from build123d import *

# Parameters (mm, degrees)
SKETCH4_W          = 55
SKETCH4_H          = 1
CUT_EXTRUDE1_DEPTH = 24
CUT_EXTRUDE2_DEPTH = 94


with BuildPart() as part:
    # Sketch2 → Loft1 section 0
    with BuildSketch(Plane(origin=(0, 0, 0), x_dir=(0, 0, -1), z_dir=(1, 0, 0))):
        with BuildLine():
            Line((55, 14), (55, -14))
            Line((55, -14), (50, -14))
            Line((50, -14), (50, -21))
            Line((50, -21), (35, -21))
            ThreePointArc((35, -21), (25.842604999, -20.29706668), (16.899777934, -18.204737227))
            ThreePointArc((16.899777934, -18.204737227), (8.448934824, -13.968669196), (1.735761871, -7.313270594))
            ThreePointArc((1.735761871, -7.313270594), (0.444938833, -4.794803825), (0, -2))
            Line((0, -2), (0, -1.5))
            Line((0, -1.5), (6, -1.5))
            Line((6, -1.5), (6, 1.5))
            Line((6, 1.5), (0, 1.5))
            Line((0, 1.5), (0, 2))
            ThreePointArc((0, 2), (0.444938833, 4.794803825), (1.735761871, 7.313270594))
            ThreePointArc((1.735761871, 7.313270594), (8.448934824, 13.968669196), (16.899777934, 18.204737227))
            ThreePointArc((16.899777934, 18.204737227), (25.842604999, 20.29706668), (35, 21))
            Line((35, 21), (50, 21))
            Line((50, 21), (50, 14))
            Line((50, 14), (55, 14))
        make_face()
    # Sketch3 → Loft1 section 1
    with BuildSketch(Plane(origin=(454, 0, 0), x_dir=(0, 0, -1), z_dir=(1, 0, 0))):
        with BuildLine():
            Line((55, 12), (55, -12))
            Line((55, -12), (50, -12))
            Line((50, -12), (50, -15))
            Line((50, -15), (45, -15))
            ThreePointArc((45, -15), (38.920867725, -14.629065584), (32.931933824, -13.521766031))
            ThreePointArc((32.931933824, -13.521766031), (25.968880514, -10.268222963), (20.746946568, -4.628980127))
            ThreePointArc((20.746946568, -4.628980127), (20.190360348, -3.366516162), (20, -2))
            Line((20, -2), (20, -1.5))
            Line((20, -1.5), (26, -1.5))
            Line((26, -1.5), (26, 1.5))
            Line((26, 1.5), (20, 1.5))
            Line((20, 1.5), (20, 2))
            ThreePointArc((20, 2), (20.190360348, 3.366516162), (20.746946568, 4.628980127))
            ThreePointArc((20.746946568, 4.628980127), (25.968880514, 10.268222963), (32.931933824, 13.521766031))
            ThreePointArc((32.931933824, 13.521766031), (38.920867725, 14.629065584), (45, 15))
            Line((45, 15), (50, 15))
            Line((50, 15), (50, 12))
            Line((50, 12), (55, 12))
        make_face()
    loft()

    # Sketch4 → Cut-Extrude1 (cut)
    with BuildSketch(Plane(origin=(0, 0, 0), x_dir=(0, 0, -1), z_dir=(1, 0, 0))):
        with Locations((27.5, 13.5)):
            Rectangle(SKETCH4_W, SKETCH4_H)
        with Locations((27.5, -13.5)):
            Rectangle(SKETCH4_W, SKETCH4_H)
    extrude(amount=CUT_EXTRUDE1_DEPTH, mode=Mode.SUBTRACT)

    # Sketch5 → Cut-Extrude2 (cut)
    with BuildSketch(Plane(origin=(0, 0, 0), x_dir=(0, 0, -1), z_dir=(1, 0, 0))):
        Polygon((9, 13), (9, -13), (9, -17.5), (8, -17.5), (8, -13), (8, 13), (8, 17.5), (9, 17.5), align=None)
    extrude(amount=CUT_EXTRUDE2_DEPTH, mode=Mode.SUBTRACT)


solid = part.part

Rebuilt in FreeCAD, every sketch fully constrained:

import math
import FreeCAD as App
import Part
import Sketcher

V = App.Vector

doc = App.newDocument("Part")
params = doc.addObject("Spreadsheet::Sheet", "Params")
for row, (alias, value) in enumerate([
    ("sketch1_radius", "60 mm"),
    ("sketch1_radius2", "30 mm"),
    ("sketch1_radius3", "9 mm"),
    ("sketch1_width", "28 mm"),
    ("sketch1_width2", "7 mm"),
    ("sketch2_radius", "50 mm"),
    ("sketch2_radius2", "20 mm"),
    ("sketch2_radius3", "5 mm"),
    ("sketch2_width", "24 mm"),
    ("sketch2_width2", "3 mm"),
    ("sketch3_width", "1 mm"),
    ("sketch3_height", "55 mm"),
    ("pocket1_length", "24 mm"),
    ("sketch4_width", "35 mm"),
    ("sketch4_height", "1 mm"),
    ("pocket2_length", "94 mm"),
], start=1):
    params.set(f"A{row}", alias)
    params.set(f"B{row}", "=" + value)
    params.setAlias(f"B{row}", alias)

body = doc.addObject("PartDesign::Body", "Body")

# Sketch on YZ plane
sketch1 = body.newObject("Sketcher::SketchObject", "Sketch")
sketch1.AttachmentSupport = (doc.getObject("YZ_Plane"), [""])
sketch1.MapMode = "FlatFace"
sketch1.addGeometry(Part.LineSegment(V(-14, -55, 0), V(14, -55, 0)), False)
sketch1.addGeometry(Part.LineSegment(V(14, -55, 0), V(14, -50, 0)), False)
sketch1.addGeometry(Part.LineSegment(V(14, -50, 0), V(21, -50, 0)), False)
sketch1.addGeometry(Part.LineSegment(V(21, -50, 0), V(21, -35, 0)), False)
sketch1.addGeometry(Part.ArcOfCircle(Part.Circle(V(-39, -35, 0), V(0, 0, 1), 60), math.radians(0), math.radians(17.557957)), False)
sketch1.addGeometry(Part.ArcOfCircle(Part.Circle(V(-10.397631, -25.949889, 0), V(0, 0, 1), 30), math.radians(17.557957), math.radians(53.8172)), False)
sketch1.addGeometry(Part.ArcOfCircle(Part.Circle(V(2, -9, 0), V(0, 0, 1), 9), math.radians(53.8172), math.radians(90)), False)
sketch1.addGeometry(Part.LineSegment(V(2, 0, 0), V(1.5, 0, 0)), False)
sketch1.addGeometry(Part.LineSegment(V(1.5, 0, 0), V(1.5, -6, 0)), False)
sketch1.addGeometry(Part.LineSegment(V(1.5, -6, 0), V(-1.5, -6, 0)), False)
sketch1.addGeometry(Part.LineSegment(V(-1.5, -6, 0), V(-1.5, 0, 0)), False)
sketch1.addGeometry(Part.LineSegment(V(-1.5, 0, 0), V(-2, 0, 0)), False)
sketch1.addGeometry(Part.ArcOfCircle(Part.Circle(V(-2, -9, 0), V(0, 0, 1), 9), math.radians(90), math.radians(126.1828)), False)
sketch1.addGeometry(Part.ArcOfCircle(Part.Circle(V(10.397631, -25.949889, 0), V(0, 0, 1), 30), math.radians(126.1828), math.radians(162.442043)), False)
sketch1.addGeometry(Part.ArcOfCircle(Part.Circle(V(39, -35, 0), V(0, 0, 1), 60), math.radians(162.442043), math.radians(180)), False)
sketch1.addGeometry(Part.LineSegment(V(-21, -35, 0), V(-21, -50, 0)), False)
sketch1.addGeometry(Part.LineSegment(V(-21, -50, 0), V(-14, -50, 0)), False)
sketch1.addGeometry(Part.LineSegment(V(-14, -50, 0), V(-14, -55, 0)), False)
sketch1.addConstraint(Sketcher.Constraint("Coincident", 0, 2, 1, 1))
sketch1.addConstraint(Sketcher.Constraint("Coincident", 1, 2, 2, 1))
sketch1.addConstraint(Sketcher.Constraint("Coincident", 2, 2, 3, 1))
sketch1.addConstraint(Sketcher.Constraint("Tangent", 3, 2, 4, 1))
sketch1.addConstraint(Sketcher.Constraint("Tangent", 4, 2, 5, 1))
sketch1.addConstraint(Sketcher.Constraint("Tangent", 5, 2, 6, 1))
sketch1.addConstraint(Sketcher.Constraint("Tangent", 6, 2, 7, 1))
sketch1.addConstraint(Sketcher.Constraint("Coincident", 7, 2, 8, 1))
sketch1.addConstraint(Sketcher.Constraint("Coincident", 8, 2, 9, 1))
sketch1.addConstraint(Sketcher.Constraint("Coincident", 9, 2, 10, 1))
sketch1.addConstraint(Sketcher.Constraint("Coincident", 10, 2, 11, 1))
sketch1.addConstraint(Sketcher.Constraint("Tangent", 11, 2, 12, 1))
sketch1.addConstraint(Sketcher.Constraint("Tangent", 12, 2, 13, 1))
sketch1.addConstraint(Sketcher.Constraint("Tangent", 13, 2, 14, 1))
sketch1.addConstraint(Sketcher.Constraint("Tangent", 14, 2, 15, 1))
sketch1.addConstraint(Sketcher.Constraint("Coincident", 15, 2, 16, 1))
sketch1.addConstraint(Sketcher.Constraint("Coincident", 16, 2, 17, 1))
sketch1.addConstraint(Sketcher.Constraint("Coincident", 17, 2, 0, 1))
sketch1.addConstraint(Sketcher.Constraint("Horizontal", 0))
sketch1.addConstraint(Sketcher.Constraint("Vertical", 1))
sketch1.addConstraint(Sketcher.Constraint("Horizontal", 2))
sketch1.addConstraint(Sketcher.Constraint("Vertical", 3))
sketch1.addConstraint(Sketcher.Constraint("Horizontal", 7))
sketch1.addConstraint(Sketcher.Constraint("Vertical", 8))
sketch1.addConstraint(Sketcher.Constraint("Horizontal", 9))
sketch1.addConstraint(Sketcher.Constraint("Vertical", 10))
sketch1.addConstraint(Sketcher.Constraint("Horizontal", 11))
sketch1.addConstraint(Sketcher.Constraint("Vertical", 15))
sketch1.addConstraint(Sketcher.Constraint("Horizontal", 16))
sketch1.addConstraint(Sketcher.Constraint("Vertical", 17))
sketch1.addConstraint(Sketcher.Constraint("Equal", 6, 12))
sketch1.addConstraint(Sketcher.Constraint("Equal", 5, 13))
sketch1.addConstraint(Sketcher.Constraint("Equal", 4, 14))
sketch1.addConstraint(Sketcher.Constraint("Symmetric", 7, 2, 10, 2, -1, 1))
sketch1.addConstraint(Sketcher.Constraint("Symmetric", 6, 3, 12, 3, -2))
sketch1.addConstraint(Sketcher.Constraint("Symmetric", 4, 3, 14, 3, -2))
sketch1.addConstraint(Sketcher.Constraint("Symmetric", 1, 2, 16, 2, -2))
sketch1.addConstraint(Sketcher.Constraint("Radius", 4, 60.0))
sketch1.addConstraint(Sketcher.Constraint("Radius", 5, 30.0))
sketch1.addConstraint(Sketcher.Constraint("Radius", 6, 9.0))
sketch1.addConstraint(Sketcher.Constraint("DistanceX", 0, 1, 0, 2, 28.0))
sketch1.addConstraint(Sketcher.Constraint("DistanceX", 2, 1, 2, 2, 7.0))
sketch1.addConstraint(Sketcher.Constraint("DistanceX", 9, 2, 9, 1, 3.0))
sketch1.addConstraint(Sketcher.Constraint("DistanceY", 1, 1, 1, 2, 5.0))
sketch1.addConstraint(Sketcher.Constraint("DistanceY", 3, 1, 3, 2, 15.0))
sketch1.addConstraint(Sketcher.Constraint("DistanceY", 8, 2, 8, 1, 6.0))
sketch1.addConstraint(Sketcher.Constraint("DistanceX", 7, 2, 7, 1, 0.5))
sketch1.addConstraint(Sketcher.Constraint("DistanceY", 4, 3, -1, 1, 35.0))
sketch1.setExpression("Constraints[37]", "Params.sketch1_radius")
sketch1.setExpression("Constraints[38]", "Params.sketch1_radius2")
sketch1.setExpression("Constraints[39]", "Params.sketch1_radius3")
sketch1.setExpression("Constraints[40]", "Params.sketch1_width")
sketch1.setExpression("Constraints[41]", "Params.sketch1_width2")

# Sketch on YZ plane
sketch2 = body.newObject("Sketcher::SketchObject", "Sketch001")
sketch2.AttachmentSupport = (doc.getObject("YZ_Plane"), [""])
sketch2.MapMode = "FlatFace"
sketch2.AttachmentOffset = App.Placement(V(0, 0, 454), App.Rotation())
sketch2.addGeometry(Part.LineSegment(V(-12, -55, 0), V(12, -55, 0)), False)
sketch2.addGeometry(Part.LineSegment(V(12, -55, 0), V(12, -50, 0)), False)
sketch2.addGeometry(Part.LineSegment(V(12, -50, 0), V(15, -50, 0)), False)
sketch2.addGeometry(Part.LineSegment(V(15, -50, 0), V(15, -45, 0)), False)
sketch2.addGeometry(Part.ArcOfCircle(Part.Circle(V(-35, -45, 0), V(0, 0, 1), 50), math.radians(0), math.radians(13.966901)), False)
sketch2.addGeometry(Part.ArcOfCircle(Part.Circle(V(-5.88694, -37.75916, 0), V(0, 0, 1), 20), math.radians(13.966901), math.radians(58.278153)), False)
sketch2.addGeometry(Part.ArcOfCircle(Part.Circle(V(2, -25, 0), V(0, 0, 1), 5), math.radians(58.278153), math.radians(90)), False)
sketch2.addGeometry(Part.LineSegment(V(2, -20, 0), V(1.5, -20, 0)), False)
sketch2.addGeometry(Part.LineSegment(V(1.5, -20, 0), V(1.5, -26, 0)), False)
sketch2.addGeometry(Part.LineSegment(V(1.5, -26, 0), V(-1.5, -26, 0)), False)
sketch2.addGeometry(Part.LineSegment(V(-1.5, -26, 0), V(-1.5, -20, 0)), False)
sketch2.addGeometry(Part.LineSegment(V(-1.5, -20, 0), V(-2, -20, 0)), False)
sketch2.addGeometry(Part.ArcOfCircle(Part.Circle(V(-2, -25, 0), V(0, 0, 1), 5), math.radians(90), math.radians(121.721847)), False)
sketch2.addGeometry(Part.ArcOfCircle(Part.Circle(V(5.88694, -37.75916, 0), V(0, 0, 1), 20), math.radians(121.721847), math.radians(166.033099)), False)
sketch2.addGeometry(Part.ArcOfCircle(Part.Circle(V(35, -45, 0), V(0, 0, 1), 50), math.radians(166.033099), math.radians(180)), False)
sketch2.addGeometry(Part.LineSegment(V(-15, -45, 0), V(-15, -50, 0)), False)
sketch2.addGeometry(Part.LineSegment(V(-15, -50, 0), V(-12, -50, 0)), False)
sketch2.addGeometry(Part.LineSegment(V(-12, -50, 0), V(-12, -55, 0)), False)
sketch2.addConstraint(Sketcher.Constraint("Coincident", 0, 2, 1, 1))
sketch2.addConstraint(Sketcher.Constraint("Coincident", 1, 2, 2, 1))
sketch2.addConstraint(Sketcher.Constraint("Coincident", 2, 2, 3, 1))
sketch2.addConstraint(Sketcher.Constraint("Tangent", 3, 2, 4, 1))
sketch2.addConstraint(Sketcher.Constraint("Tangent", 4, 2, 5, 1))
sketch2.addConstraint(Sketcher.Constraint("Tangent", 5, 2, 6, 1))
sketch2.addConstraint(Sketcher.Constraint("Tangent", 6, 2, 7, 1))
sketch2.addConstraint(Sketcher.Constraint("Coincident", 7, 2, 8, 1))
sketch2.addConstraint(Sketcher.Constraint("Coincident", 8, 2, 9, 1))
sketch2.addConstraint(Sketcher.Constraint("Coincident", 9, 2, 10, 1))
sketch2.addConstraint(Sketcher.Constraint("Coincident", 10, 2, 11, 1))
sketch2.addConstraint(Sketcher.Constraint("Tangent", 11, 2, 12, 1))
sketch2.addConstraint(Sketcher.Constraint("Tangent", 12, 2, 13, 1))
sketch2.addConstraint(Sketcher.Constraint("Tangent", 13, 2, 14, 1))
sketch2.addConstraint(Sketcher.Constraint("Tangent", 14, 2, 15, 1))
sketch2.addConstraint(Sketcher.Constraint("Coincident", 15, 2, 16, 1))
sketch2.addConstraint(Sketcher.Constraint("Coincident", 16, 2, 17, 1))
sketch2.addConstraint(Sketcher.Constraint("Coincident", 17, 2, 0, 1))
sketch2.addConstraint(Sketcher.Constraint("Horizontal", 0))
sketch2.addConstraint(Sketcher.Constraint("Vertical", 1))
sketch2.addConstraint(Sketcher.Constraint("Horizontal", 2))
sketch2.addConstraint(Sketcher.Constraint("Vertical", 3))
sketch2.addConstraint(Sketcher.Constraint("Horizontal", 7))
sketch2.addConstraint(Sketcher.Constraint("Vertical", 8))
sketch2.addConstraint(Sketcher.Constraint("Horizontal", 9))
sketch2.addConstraint(Sketcher.Constraint("Vertical", 10))
sketch2.addConstraint(Sketcher.Constraint("Horizontal", 11))
sketch2.addConstraint(Sketcher.Constraint("Vertical", 15))
sketch2.addConstraint(Sketcher.Constraint("Horizontal", 16))
sketch2.addConstraint(Sketcher.Constraint("Vertical", 17))
sketch2.addConstraint(Sketcher.Constraint("Equal", 6, 12))
sketch2.addConstraint(Sketcher.Constraint("Equal", 5, 13))
sketch2.addConstraint(Sketcher.Constraint("Equal", 4, 14))
sketch2.addConstraint(Sketcher.Constraint("Symmetric", 6, 3, 12, 3, -2))
sketch2.addConstraint(Sketcher.Constraint("Symmetric", 4, 3, 14, 3, -2))
sketch2.addConstraint(Sketcher.Constraint("Symmetric", 1, 2, 16, 2, -2))
sketch2.addConstraint(Sketcher.Constraint("Equal", 2, 9))
sketch2.addConstraint(Sketcher.Constraint("Equal", 7, 11))
sketch2.addConstraint(Sketcher.Constraint("Equal", 1, 3))
sketch2.addConstraint(Sketcher.Constraint("Radius", 4, 50.0))
sketch2.addConstraint(Sketcher.Constraint("Radius", 5, 20.0))
sketch2.addConstraint(Sketcher.Constraint("Radius", 6, 5.0))
sketch2.addConstraint(Sketcher.Constraint("DistanceX", 0, 1, 0, 2, 24.0))
sketch2.addConstraint(Sketcher.Constraint("DistanceX", 2, 1, 2, 2, 3.0))
sketch2.addConstraint(Sketcher.Constraint("DistanceY", 1, 1, 1, 2, 5.0))
sketch2.addConstraint(Sketcher.Constraint("DistanceY", 8, 2, 8, 1, 6.0))
sketch2.addConstraint(Sketcher.Constraint("DistanceX", 7, 2, 7, 1, 0.5))
sketch2.addConstraint(Sketcher.Constraint("DistanceY", 4, 3, -1, 1, 45.0))
sketch2.addConstraint(Sketcher.Constraint("DistanceY", 6, 3, -1, 1, 25.0))
sketch2.setExpression("Constraints[39]", "Params.sketch2_radius")
sketch2.setExpression("Constraints[40]", "Params.sketch2_radius2")
sketch2.setExpression("Constraints[41]", "Params.sketch2_radius3")
sketch2.setExpression("Constraints[42]", "Params.sketch2_width")
sketch2.setExpression("Constraints[43]", "Params.sketch2_width2")

additiveloft = body.newObject("PartDesign::AdditiveLoft", "AdditiveLoft")
additiveloft.Profile = sketch1
additiveloft.Sections = [sketch2]

# Sketch on YZ plane
sketch3 = body.newObject("Sketcher::SketchObject", "Sketch002")
sketch3.AttachmentSupport = (doc.getObject("YZ_Plane"), [""])
sketch3.MapMode = "FlatFace"
sketch3.addGeometry(Part.LineSegment(V(14, 0, 0), V(13, 0, 0)), False)
sketch3.addGeometry(Part.LineSegment(V(13, 0, 0), V(13, -55, 0)), False)
sketch3.addGeometry(Part.LineSegment(V(13, -55, 0), V(14, -55, 0)), False)
sketch3.addGeometry(Part.LineSegment(V(14, -55, 0), V(14, 0, 0)), False)
sketch3.addGeometry(Part.LineSegment(V(-13, 0, 0), V(-14, 0, 0)), False)
sketch3.addGeometry(Part.LineSegment(V(-14, 0, 0), V(-14, -55, 0)), False)
sketch3.addGeometry(Part.LineSegment(V(-14, -55, 0), V(-13, -55, 0)), False)
sketch3.addGeometry(Part.LineSegment(V(-13, -55, 0), V(-13, 0, 0)), False)
sketch3.addConstraint(Sketcher.Constraint("Coincident", 0, 2, 1, 1))
sketch3.addConstraint(Sketcher.Constraint("Coincident", 1, 2, 2, 1))
sketch3.addConstraint(Sketcher.Constraint("Coincident", 2, 2, 3, 1))
sketch3.addConstraint(Sketcher.Constraint("Coincident", 3, 2, 0, 1))
sketch3.addConstraint(Sketcher.Constraint("Coincident", 4, 2, 5, 1))
sketch3.addConstraint(Sketcher.Constraint("Coincident", 5, 2, 6, 1))
sketch3.addConstraint(Sketcher.Constraint("Coincident", 6, 2, 7, 1))
sketch3.addConstraint(Sketcher.Constraint("Coincident", 7, 2, 4, 1))
sketch3.addConstraint(Sketcher.Constraint("Horizontal", 0))
sketch3.addConstraint(Sketcher.Constraint("Vertical", 1))
sketch3.addConstraint(Sketcher.Constraint("Horizontal", 2))
sketch3.addConstraint(Sketcher.Constraint("Vertical", 3))
sketch3.addConstraint(Sketcher.Constraint("Horizontal", 4))
sketch3.addConstraint(Sketcher.Constraint("Vertical", 5))
sketch3.addConstraint(Sketcher.Constraint("Horizontal", 6))
sketch3.addConstraint(Sketcher.Constraint("Vertical", 7))
sketch3.addConstraint(Sketcher.Constraint("Symmetric", 3, 2, 4, 2, -1, 1))
sketch3.addConstraint(Sketcher.Constraint("Symmetric", 1, 2, 6, 2, -2))
sketch3.addConstraint(Sketcher.Constraint("PointOnObject", 0, 2, -1))
sketch3.addConstraint(Sketcher.Constraint("DistanceX", 0, 2, 0, 1, 1.0))
sketch3.addConstraint(Sketcher.Constraint("DistanceY", 1, 2, 1, 1, 55.0))
sketch3.addConstraint(Sketcher.Constraint("DistanceX", -1, 1, 0, 2, 13.0))
sketch3.setExpression("Constraints[19]", "Params.sketch3_width")
sketch3.setExpression("Constraints[20]", "Params.sketch3_height")
pocket1 = body.newObject("PartDesign::Pocket", "Pocket")
pocket1.Profile = sketch3
pocket1.setExpression("Length", "Params.pocket1_length")
pocket1.Reversed = True

# Sketch on YZ plane
sketch4 = body.newObject("Sketcher::SketchObject", "Sketch003")
sketch4.AttachmentSupport = (doc.getObject("YZ_Plane"), [""])
sketch4.MapMode = "FlatFace"
sketch4.addGeometry(Part.LineSegment(V(-17.5, -9, 0), V(17.5, -9, 0)), False)
sketch4.addGeometry(Part.LineSegment(V(17.5, -9, 0), V(17.5, -8, 0)), False)
sketch4.addGeometry(Part.LineSegment(V(17.5, -8, 0), V(-17.5, -8, 0)), False)
sketch4.addGeometry(Part.LineSegment(V(-17.5, -8, 0), V(-17.5, -9, 0)), False)
sketch4.addConstraint(Sketcher.Constraint("Coincident", 0, 2, 1, 1))
sketch4.addConstraint(Sketcher.Constraint("Coincident", 1, 2, 2, 1))
sketch4.addConstraint(Sketcher.Constraint("Coincident", 2, 2, 3, 1))
sketch4.addConstraint(Sketcher.Constraint("Coincident", 3, 2, 0, 1))
sketch4.addConstraint(Sketcher.Constraint("Horizontal", 0))
sketch4.addConstraint(Sketcher.Constraint("Vertical", 1))
sketch4.addConstraint(Sketcher.Constraint("Horizontal", 2))
sketch4.addConstraint(Sketcher.Constraint("Vertical", 3))
sketch4.addConstraint(Sketcher.Constraint("DistanceX", 0, 1, 0, 2, 35.0))
sketch4.addConstraint(Sketcher.Constraint("DistanceY", 1, 1, 1, 2, 1.0))
sketch4.addConstraint(Sketcher.Constraint("DistanceY", 0, 2, -1, 1, 9.0))
sketch4.addConstraint(Sketcher.Constraint("DistanceX", -1, 1, 0, 2, 17.5))
sketch4.setExpression("Constraints[8]", "Params.sketch4_width")
sketch4.setExpression("Constraints[9]", "Params.sketch4_height")
pocket2 = body.newObject("PartDesign::Pocket", "Pocket001")
pocket2.Profile = sketch4
pocket2.setExpression("Length", "Params.pocket2_length")
pocket2.Reversed = True

doc.recompute()
